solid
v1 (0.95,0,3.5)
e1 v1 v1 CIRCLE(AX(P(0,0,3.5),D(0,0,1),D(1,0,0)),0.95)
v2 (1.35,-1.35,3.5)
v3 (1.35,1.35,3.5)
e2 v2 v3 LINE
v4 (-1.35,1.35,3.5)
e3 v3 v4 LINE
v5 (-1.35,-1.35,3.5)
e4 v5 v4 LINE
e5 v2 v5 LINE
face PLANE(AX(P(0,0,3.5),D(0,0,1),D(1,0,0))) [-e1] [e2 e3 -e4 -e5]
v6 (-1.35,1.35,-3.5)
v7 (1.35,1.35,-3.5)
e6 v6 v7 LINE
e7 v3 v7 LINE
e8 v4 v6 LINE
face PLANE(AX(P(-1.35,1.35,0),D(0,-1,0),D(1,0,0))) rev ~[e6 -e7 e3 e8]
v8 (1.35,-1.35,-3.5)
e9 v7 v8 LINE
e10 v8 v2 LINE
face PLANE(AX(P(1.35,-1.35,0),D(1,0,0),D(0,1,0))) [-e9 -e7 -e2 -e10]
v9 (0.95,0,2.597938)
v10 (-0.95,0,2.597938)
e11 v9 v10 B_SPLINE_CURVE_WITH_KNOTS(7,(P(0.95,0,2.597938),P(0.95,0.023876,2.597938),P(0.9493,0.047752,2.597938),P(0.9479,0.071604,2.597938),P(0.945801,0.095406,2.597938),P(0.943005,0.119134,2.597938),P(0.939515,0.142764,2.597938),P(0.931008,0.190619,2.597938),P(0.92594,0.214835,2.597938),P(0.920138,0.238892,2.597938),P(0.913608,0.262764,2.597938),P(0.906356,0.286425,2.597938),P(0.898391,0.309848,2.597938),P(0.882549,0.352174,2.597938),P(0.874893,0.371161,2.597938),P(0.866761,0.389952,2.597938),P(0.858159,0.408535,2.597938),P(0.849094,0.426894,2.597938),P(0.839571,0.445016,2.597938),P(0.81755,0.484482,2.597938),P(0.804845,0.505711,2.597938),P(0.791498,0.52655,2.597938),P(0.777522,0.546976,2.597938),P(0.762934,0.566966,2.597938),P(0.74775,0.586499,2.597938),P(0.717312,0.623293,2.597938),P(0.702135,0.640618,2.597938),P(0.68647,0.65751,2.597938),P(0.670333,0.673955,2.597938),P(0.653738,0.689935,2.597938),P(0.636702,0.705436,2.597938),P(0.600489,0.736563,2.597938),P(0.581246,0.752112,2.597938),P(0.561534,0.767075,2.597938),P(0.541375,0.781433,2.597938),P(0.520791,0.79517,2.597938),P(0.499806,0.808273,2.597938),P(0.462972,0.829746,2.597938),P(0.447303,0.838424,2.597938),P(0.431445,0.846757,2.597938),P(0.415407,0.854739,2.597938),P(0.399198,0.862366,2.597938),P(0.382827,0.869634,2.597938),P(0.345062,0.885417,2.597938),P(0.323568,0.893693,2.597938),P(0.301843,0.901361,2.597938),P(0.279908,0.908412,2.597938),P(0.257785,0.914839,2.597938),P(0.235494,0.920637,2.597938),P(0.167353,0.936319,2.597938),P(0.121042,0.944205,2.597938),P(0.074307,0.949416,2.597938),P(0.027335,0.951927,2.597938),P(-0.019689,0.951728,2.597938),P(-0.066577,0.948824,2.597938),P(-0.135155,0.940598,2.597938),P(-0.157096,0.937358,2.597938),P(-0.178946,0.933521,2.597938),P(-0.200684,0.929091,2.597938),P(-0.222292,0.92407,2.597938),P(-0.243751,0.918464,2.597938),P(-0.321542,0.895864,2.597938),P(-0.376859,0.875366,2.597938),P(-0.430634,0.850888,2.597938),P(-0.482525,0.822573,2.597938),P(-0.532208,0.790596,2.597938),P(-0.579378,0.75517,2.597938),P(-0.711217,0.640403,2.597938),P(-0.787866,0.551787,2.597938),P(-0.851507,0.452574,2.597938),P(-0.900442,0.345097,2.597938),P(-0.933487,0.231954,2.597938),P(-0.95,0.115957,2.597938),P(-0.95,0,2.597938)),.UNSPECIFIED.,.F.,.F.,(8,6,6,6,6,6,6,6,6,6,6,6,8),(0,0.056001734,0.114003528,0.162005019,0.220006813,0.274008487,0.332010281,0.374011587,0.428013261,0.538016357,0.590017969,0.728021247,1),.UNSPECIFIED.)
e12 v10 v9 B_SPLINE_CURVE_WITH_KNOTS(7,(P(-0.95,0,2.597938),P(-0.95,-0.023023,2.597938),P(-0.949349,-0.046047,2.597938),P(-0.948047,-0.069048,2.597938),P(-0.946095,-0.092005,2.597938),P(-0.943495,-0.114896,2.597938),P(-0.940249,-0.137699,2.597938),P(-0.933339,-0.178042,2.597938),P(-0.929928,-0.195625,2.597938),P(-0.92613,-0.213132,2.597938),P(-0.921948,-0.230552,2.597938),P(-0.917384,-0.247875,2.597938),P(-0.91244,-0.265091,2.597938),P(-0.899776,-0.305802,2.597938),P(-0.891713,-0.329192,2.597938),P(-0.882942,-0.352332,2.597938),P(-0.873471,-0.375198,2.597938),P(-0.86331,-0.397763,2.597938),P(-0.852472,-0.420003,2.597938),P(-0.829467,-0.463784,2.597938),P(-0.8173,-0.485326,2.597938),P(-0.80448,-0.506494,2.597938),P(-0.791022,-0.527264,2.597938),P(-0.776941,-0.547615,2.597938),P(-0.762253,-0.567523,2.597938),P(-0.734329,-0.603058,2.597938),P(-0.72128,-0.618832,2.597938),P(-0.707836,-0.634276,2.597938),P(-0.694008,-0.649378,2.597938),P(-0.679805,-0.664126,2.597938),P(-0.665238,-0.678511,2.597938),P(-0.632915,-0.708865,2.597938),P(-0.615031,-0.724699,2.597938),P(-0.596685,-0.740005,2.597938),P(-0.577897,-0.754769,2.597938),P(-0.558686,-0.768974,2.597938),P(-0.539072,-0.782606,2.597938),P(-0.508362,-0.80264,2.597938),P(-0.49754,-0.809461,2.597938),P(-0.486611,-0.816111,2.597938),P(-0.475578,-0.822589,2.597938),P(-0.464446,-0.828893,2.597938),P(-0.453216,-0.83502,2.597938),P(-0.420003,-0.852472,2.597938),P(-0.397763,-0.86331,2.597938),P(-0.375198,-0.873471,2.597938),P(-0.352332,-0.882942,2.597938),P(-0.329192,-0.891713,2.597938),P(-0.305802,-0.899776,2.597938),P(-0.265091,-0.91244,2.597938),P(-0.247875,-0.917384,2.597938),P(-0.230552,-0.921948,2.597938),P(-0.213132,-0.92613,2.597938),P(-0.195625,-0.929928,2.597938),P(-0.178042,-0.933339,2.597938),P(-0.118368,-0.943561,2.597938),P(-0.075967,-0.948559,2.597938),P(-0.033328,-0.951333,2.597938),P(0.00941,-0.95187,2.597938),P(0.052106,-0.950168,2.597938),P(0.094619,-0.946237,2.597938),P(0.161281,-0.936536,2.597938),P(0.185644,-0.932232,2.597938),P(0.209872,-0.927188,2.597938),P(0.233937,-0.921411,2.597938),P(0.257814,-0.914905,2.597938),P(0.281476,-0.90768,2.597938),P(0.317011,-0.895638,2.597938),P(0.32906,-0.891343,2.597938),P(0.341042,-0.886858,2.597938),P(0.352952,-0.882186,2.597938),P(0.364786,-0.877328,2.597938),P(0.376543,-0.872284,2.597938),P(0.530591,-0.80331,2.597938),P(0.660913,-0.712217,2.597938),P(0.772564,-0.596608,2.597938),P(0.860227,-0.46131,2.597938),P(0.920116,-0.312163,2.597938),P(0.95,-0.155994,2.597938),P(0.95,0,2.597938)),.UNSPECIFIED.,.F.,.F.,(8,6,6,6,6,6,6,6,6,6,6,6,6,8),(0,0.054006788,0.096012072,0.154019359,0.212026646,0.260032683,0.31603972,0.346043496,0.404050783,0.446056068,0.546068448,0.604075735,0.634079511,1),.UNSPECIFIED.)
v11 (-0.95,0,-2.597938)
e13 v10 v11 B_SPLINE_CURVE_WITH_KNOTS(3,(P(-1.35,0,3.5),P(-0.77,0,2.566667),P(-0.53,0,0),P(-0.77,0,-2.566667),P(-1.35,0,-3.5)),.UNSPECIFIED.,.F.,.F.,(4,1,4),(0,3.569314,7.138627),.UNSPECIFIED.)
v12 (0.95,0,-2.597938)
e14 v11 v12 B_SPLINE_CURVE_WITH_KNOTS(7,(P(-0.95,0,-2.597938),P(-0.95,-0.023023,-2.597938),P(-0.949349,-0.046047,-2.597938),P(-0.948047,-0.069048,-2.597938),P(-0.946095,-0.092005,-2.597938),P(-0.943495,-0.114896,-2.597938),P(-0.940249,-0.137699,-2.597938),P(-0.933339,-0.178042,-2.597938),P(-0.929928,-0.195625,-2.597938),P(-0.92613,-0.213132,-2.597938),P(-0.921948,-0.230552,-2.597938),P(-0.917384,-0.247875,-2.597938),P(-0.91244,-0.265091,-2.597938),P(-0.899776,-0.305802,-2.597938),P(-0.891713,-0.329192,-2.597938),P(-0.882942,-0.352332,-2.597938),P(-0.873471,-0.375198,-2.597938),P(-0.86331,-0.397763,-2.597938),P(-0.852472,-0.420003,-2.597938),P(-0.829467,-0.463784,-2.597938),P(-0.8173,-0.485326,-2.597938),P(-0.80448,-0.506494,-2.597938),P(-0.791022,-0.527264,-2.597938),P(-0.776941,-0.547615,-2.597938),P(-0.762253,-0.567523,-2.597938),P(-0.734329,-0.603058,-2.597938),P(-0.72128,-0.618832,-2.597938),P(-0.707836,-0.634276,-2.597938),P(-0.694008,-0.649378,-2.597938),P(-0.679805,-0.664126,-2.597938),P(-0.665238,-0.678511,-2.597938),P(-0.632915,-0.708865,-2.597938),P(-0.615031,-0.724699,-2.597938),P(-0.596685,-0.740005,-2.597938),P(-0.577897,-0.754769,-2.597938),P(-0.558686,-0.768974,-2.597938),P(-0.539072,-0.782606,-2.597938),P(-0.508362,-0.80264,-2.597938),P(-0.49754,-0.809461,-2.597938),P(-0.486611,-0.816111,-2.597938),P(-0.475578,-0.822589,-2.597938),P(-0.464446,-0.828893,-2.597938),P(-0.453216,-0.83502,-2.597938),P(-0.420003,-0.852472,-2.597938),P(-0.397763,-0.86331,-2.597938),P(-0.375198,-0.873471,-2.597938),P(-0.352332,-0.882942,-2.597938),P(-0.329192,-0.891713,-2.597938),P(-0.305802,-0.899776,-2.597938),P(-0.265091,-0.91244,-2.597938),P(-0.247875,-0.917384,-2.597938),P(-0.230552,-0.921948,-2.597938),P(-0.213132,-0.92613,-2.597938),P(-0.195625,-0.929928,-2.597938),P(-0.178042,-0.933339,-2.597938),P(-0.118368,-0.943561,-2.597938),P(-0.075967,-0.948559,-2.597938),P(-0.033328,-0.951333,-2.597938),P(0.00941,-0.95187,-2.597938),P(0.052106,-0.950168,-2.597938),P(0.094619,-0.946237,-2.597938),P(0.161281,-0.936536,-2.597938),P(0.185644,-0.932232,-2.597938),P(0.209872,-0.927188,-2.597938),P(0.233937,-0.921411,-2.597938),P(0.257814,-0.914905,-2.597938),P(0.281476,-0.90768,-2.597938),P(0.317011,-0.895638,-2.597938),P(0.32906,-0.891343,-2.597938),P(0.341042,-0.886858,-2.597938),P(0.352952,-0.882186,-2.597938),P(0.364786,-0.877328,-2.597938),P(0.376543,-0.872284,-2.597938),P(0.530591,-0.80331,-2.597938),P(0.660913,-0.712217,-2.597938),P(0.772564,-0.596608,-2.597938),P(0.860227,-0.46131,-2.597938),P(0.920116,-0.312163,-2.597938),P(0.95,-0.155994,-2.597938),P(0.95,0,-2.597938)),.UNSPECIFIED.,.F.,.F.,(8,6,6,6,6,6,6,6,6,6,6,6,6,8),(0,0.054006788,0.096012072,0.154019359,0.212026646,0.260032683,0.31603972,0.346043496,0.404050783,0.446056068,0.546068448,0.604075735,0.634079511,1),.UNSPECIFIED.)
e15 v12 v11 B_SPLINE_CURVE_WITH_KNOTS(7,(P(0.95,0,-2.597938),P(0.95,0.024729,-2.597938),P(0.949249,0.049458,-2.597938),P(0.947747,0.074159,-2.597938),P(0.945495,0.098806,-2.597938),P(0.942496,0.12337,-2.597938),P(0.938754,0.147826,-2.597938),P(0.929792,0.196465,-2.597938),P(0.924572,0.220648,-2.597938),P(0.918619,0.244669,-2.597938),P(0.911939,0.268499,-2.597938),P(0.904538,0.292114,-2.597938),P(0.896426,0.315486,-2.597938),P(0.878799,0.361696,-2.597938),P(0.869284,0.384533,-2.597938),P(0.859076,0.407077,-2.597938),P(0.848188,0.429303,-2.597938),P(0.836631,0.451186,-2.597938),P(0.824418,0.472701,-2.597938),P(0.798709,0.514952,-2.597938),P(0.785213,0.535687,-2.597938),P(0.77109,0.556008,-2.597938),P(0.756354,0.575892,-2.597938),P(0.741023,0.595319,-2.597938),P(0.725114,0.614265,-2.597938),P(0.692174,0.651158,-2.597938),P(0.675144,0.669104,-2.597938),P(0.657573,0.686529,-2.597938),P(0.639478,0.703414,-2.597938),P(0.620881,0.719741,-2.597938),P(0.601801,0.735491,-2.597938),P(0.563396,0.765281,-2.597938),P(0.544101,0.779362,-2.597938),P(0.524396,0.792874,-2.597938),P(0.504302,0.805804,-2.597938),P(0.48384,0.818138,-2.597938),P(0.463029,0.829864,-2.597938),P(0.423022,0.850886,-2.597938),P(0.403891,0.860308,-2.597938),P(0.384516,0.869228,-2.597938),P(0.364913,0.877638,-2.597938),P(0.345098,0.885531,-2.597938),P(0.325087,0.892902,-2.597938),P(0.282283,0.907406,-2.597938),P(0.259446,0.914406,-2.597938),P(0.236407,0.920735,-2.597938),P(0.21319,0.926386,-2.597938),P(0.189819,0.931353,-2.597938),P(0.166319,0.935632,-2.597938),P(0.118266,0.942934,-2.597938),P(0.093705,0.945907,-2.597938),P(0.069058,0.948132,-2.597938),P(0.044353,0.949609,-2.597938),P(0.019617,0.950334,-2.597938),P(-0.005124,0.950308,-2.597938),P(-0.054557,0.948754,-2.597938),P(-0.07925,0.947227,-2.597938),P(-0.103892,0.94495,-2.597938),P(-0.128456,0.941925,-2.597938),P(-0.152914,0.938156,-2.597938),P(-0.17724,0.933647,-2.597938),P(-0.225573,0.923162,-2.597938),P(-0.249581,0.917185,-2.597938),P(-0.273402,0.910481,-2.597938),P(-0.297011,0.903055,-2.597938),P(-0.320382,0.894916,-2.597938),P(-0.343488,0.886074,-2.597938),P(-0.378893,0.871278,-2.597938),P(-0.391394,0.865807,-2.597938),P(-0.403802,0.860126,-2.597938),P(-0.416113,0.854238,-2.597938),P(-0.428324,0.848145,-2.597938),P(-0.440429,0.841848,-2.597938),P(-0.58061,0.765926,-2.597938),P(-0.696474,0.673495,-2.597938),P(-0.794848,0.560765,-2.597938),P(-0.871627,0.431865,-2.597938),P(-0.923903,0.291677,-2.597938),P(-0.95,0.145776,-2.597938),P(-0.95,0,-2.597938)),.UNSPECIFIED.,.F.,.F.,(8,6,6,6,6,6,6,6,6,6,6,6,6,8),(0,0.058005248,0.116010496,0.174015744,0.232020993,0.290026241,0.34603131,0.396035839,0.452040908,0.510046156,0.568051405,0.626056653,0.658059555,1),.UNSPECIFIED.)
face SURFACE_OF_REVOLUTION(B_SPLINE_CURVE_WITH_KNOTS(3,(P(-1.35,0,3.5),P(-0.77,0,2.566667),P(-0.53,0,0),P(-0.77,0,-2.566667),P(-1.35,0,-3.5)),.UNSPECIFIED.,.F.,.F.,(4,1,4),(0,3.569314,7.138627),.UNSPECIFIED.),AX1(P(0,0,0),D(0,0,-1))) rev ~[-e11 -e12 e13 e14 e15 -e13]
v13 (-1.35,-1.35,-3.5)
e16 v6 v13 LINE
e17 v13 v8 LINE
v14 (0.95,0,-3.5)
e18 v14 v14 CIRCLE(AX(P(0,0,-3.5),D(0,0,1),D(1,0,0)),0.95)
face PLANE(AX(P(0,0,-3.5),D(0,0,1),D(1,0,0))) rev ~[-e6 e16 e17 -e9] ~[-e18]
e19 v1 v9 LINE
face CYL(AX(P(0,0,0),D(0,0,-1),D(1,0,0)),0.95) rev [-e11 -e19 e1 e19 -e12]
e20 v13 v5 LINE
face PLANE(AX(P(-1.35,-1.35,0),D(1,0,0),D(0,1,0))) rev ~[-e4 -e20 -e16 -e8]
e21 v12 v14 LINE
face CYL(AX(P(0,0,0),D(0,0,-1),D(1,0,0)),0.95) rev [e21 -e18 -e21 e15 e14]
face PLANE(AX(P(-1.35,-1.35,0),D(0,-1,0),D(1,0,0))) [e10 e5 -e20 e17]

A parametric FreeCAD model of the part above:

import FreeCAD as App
import Part
import Sketcher


def add_polygon(sketch, points):
    """Adds a closed chain of lines whose ends are joined by coincident constraints."""
    first, n = sketch.GeometryCount, len(points)
    for a, b in zip(points, points[1:] + points[:1]):
        sketch.addGeometry(Part.LineSegment(App.Vector(*a, 0), App.Vector(*b, 0)), False)
    for i in range(n):
        sketch.addConstraint(Sketcher.Constraint("Coincident", first + i, 2, first + (i + 1) % n, 1))

doc = App.newDocument("Part")
body = doc.addObject("PartDesign::Body", "Body")

# Sketch on XZ plane
sketch1 = body.newObject("Sketcher::SketchObject", "Sketch")
sketch1.AttachmentSupport = (doc.getObject("XZ_Plane"), [""])
sketch1.MapMode = "FlatFace"
sketch1.addGeometry(Part.BSplineCurve([App.Vector(-1.35, 3.5, 0), App.Vector(-0.77, 2.566667, 0), App.Vector(-0.53, 0, 0), App.Vector(-0.77, -2.566667, 0), App.Vector(-1.35, -3.5, 0)], [4, 1, 4], [0, 3.569314, 7.138627], False, 3, [1, 1, 1, 1, 1], False), False)
sketch1.addGeometry(Part.LineSegment(App.Vector(-1.35, 3.5, 0), App.Vector(-1.35, -3.5, 0)), False)
sketch1.addConstraint(Sketcher.Constraint("Block", 0))
sketch1.addConstraint(Sketcher.Constraint("Coincident", 0, 1, 1, 1))
sketch1.addConstraint(Sketcher.Constraint("Coincident", 1, 2, 0, 2))
revolution = body.newObject("PartDesign::Revolution", "Revolution")
revolution.Profile = sketch1
revolution.ReferenceAxis = (sketch1, ["V_Axis"])
revolution.Angle = 360

# Sketch on XY plane
sketch2 = body.newObject("Sketcher::SketchObject", "Sketch001")
sketch2.AttachmentSupport = (doc.getObject("XY_Plane"), [""])
sketch2.MapMode = "FlatFace"
add_polygon(sketch2, [(-1.4, 1.4), (-1.4, -1.4), (1.4, -1.4), (1.4, 1.4)])  # lines 0-3
sketch2.addGeometry(Part.Circle(App.Vector(0, 0, 0), App.Vector(0, 0, 1), 0.9), False)  # 4
sketch2.addConstraint(Sketcher.Constraint("Vertical", 0))
sketch2.addConstraint(Sketcher.Constraint("Horizontal", 1))
sketch2.addConstraint(Sketcher.Constraint("Vertical", 2))
sketch2.addConstraint(Sketcher.Constraint("Horizontal", 3))
sketch2.addConstraint(Sketcher.Constraint("Coincident", 4, 3, -1, 1))
sketch2.addConstraint(Sketcher.Constraint("Symmetric", 0, 2, 2, 2, -1, 1))
sketch2.addConstraint(Sketcher.Constraint("Equal", 3, 0))
sketch2.addConstraint(Sketcher.Constraint("Diameter", 4, 1.9))
sketch2.addConstraint(Sketcher.Constraint("DistanceX", 1, 1, 1, 2, 2.7))
pad1 = body.newObject("PartDesign::Pad", "Pad")
pad1.Profile = sketch2
pad1.Length = 7
pad1.Midplane = True

doc.recompute()
